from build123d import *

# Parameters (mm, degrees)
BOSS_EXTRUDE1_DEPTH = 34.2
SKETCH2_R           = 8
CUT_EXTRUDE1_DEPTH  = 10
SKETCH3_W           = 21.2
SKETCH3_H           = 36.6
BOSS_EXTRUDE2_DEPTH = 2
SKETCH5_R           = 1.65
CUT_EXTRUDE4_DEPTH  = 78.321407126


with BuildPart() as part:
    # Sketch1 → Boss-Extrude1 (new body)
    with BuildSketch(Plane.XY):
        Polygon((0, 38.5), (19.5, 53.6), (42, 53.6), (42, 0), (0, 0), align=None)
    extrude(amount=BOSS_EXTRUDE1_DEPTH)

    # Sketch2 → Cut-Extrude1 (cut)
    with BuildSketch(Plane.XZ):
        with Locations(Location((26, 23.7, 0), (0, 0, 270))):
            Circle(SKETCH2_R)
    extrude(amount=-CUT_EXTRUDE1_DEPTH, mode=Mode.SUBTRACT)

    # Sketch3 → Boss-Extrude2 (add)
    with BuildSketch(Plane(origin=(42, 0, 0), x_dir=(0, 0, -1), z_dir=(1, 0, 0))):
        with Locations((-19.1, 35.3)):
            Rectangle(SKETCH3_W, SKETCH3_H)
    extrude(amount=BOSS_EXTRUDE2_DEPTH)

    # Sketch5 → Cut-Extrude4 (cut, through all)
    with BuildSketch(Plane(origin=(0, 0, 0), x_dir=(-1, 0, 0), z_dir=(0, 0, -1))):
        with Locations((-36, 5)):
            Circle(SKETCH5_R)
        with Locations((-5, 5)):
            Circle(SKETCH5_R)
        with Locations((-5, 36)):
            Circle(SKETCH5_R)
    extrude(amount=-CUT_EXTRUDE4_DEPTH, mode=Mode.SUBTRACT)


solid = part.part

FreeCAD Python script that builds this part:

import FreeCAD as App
import Part
import Sketcher

V = App.Vector
Q = App.Units.Quantity


def add_polygon(sketch, points):
    """Adds a closed chain of lines whose ends are joined by coincident constraints."""
    first, n = sketch.GeometryCount, len(points)
    for a, b in zip(points, points[1:] + points[:1]):
        sketch.addGeometry(Part.LineSegment(App.Vector(*a, 0), App.Vector(*b, 0)), False)
    for i in range(n):
        sketch.addConstraint(Sketcher.Constraint("Coincident", first + i, 2, first + (i + 1) % n, 1))

doc = App.newDocument("Part")
body = doc.addObject("PartDesign::Body", "Body")

# Sketch on XY plane
sketch1 = body.newObject("Sketcher::SketchObject", "Sketch")
sketch1.AttachmentSupport = (doc.getObject("XY_Plane"), [""])
sketch1.MapMode = "FlatFace"
add_polygon(sketch1, [(20, 54), (0, 38), (0, 0), (42, 0), (42, 54)])  # lines 0-4
sketch1.addConstraint([
    Sketcher.Constraint("Vertical", 1),
    Sketcher.Constraint("Horizontal", 2),
    Sketcher.Constraint("Vertical", 3),
    Sketcher.Constraint("Horizontal", 4),
    Sketcher.Constraint("Coincident", 1, 2, -1, 1),
    Sketcher.Constraint("DistanceX", 2, 1, 2, 2, Q("42 mm")),
    Sketcher.Constraint("DistanceX", 4, 2, 4, 1, Q("22.5 mm")),
    Sketcher.Constraint("DistanceY", 1, 2, 1, 1, Q("38.5 mm")),
    Sketcher.Constraint("DistanceY", 3, 1, 3, 2, Q("53.6 mm")),
])
pad1 = body.newObject("PartDesign::Pad", "Pad")
pad1.Profile = sketch1
pad1.Length = 34.2

# Sketch on XZ plane
sketch2 = body.newObject("Sketcher::SketchObject", "Sketch001")
sketch2.AttachmentSupport = (doc.getObject("XZ_Plane"), [""])
sketch2.MapMode = "FlatFace"
sketch2.addGeometry(Part.Circle(V(26, 24, 0), V(0, 0, 1), 8), False)
sketch2.addConstraint([
    Sketcher.Constraint("Diameter", 0, Q("16 mm")),
    Sketcher.Constraint("DistanceX", -1, 1, 0, 3, Q("26 mm")),
    Sketcher.Constraint("DistanceY", -1, 1, 0, 3, Q("23.7 mm")),
])
pocket1 = body.newObject("PartDesign::Pocket", "Pocket")
pocket1.Profile = sketch2
pocket1.Length = 10

# Sketch on YZ plane
sketch3 = body.newObject("Sketcher::SketchObject", "Sketch002")
sketch3.AttachmentSupport = (doc.getObject("YZ_Plane"), [""])
sketch3.MapMode = "FlatFace"
sketch3.AttachmentOffset = App.Placement(V(0, 0, 42), App.Rotation())
add_polygon(sketch3, [(54, 30), (17, 30), (17, 8), (54, 8)])  # lines 0-3
sketch3.addConstraint([
    Sketcher.Constraint("Horizontal", 0),
    Sketcher.Constraint("Vertical", 1),
    Sketcher.Constraint("Horizontal", 2),
    Sketcher.Constraint("Vertical", 3),
    Sketcher.Constraint("DistanceX", 0, 2, 0, 1, Q("36.6 mm")),
    Sketcher.Constraint("DistanceY", 1, 2, 1, 1, Q("21.2 mm")),
    Sketcher.Constraint("DistanceX", -1, 1, 0, 2, Q("17 mm")),
    Sketcher.Constraint("DistanceY", -1, 1, 0, 2, Q("29.7 mm")),
])
pad2 = body.newObject("PartDesign::Pad", "Pad001")
pad2.Profile = sketch3
pad2.Length = 2

# Sketch on XY plane
sketch4 = body.newObject("Sketcher::SketchObject", "Sketch003")
sketch4.AttachmentSupport = (doc.getObject("XY_Plane"), [""])
sketch4.MapMode = "FlatFace"
sketch4.addGeometry([
    Part.Circle(V(36, 5, 0), V(0, 0, 1), 1.6),
    Part.Circle(V(5, 5, 0), V(0, 0, 1), 1.6),
    Part.Circle(V(5, 36, 0), V(0, 0, 1), 1.6),
], False)
sketch4.addConstraint([
    Sketcher.Constraint("Equal", 0, 1),
    Sketcher.Constraint("Equal", 1, 2),
    Sketcher.Constraint("Horizontal", 0, 3, 1, 3),
    Sketcher.Constraint("Vertical", 1, 3, 2, 3),
    Sketcher.Constraint("Diameter", 0, Q("3.3 mm")),
    Sketcher.Constraint("DistanceX", -1, 1, 0, 3, Q("36 mm")),
    Sketcher.Constraint("DistanceY", -1, 1, 0, 3, Q("5 mm")),
    Sketcher.Constraint("DistanceX", -1, 1, 1, 3, Q("5 mm")),
    Sketcher.Constraint("DistanceY", -1, 1, 2, 3, Q("36 mm")),
])
pocket2 = body.newObject("PartDesign::Pocket", "Pocket001")
pocket2.Profile = sketch4
pocket2.Type = "ThroughAll"
pocket2.Reversed = True

doc.recompute()
